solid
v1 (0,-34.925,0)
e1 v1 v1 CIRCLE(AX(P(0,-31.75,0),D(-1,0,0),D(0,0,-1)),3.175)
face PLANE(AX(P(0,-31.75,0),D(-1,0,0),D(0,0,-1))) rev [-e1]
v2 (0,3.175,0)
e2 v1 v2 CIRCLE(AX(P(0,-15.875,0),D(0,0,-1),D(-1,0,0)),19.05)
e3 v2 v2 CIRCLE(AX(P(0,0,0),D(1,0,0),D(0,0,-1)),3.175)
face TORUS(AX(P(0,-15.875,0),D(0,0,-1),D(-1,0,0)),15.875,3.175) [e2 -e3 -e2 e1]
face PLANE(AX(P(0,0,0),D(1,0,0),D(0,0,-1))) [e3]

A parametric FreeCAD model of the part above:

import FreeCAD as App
import Part
import Sketcher

V = App.Vector
Q = App.Units.Quantity

doc = App.newDocument("Part")
body = doc.addObject("PartDesign::Body", "Body")

# Sketch on YZ plane
sketch1 = doc.addObject("Sketcher::SketchObject", "Sketch")
body.addObject(sketch1)
sketch1.AttachmentSupport = (doc.YZ_Plane, [""])
sketch1.MapMode = "FlatFace"
sketch1.addGeometry(Part.Circle(V(0, 0, 0), V(0, 0, 1), 3.175), False)
sketch1.addGeometry(Part.LineSegment(V(-15.875, 0, 0), V(-15.875, 10, 0)), True)  # axis
sketch1.addConstraint([
    Sketcher.Constraint("Vertical", 1),
    Sketcher.Constraint("Coincident", 0, 3, -1, 1),
    Sketcher.Constraint("PointOnObject", 1, 1, -1),
    Sketcher.Constraint("Diameter", 0, Q("0.25 in")),
    Sketcher.Constraint("DistanceX", 1, 1, -1, 1, Q("0.625 in")),
    Sketcher.Constraint("DistanceY", 1, 1, 1, 2, Q("10 mm")),
])
revolution = doc.addObject("PartDesign::Revolution", "Revolution")
body.addObject(revolution)
revolution.Profile = sketch1
revolution.ReferenceAxis = (sketch1, ["Axis0"])
revolution.Angle = 180

doc.recompute()
